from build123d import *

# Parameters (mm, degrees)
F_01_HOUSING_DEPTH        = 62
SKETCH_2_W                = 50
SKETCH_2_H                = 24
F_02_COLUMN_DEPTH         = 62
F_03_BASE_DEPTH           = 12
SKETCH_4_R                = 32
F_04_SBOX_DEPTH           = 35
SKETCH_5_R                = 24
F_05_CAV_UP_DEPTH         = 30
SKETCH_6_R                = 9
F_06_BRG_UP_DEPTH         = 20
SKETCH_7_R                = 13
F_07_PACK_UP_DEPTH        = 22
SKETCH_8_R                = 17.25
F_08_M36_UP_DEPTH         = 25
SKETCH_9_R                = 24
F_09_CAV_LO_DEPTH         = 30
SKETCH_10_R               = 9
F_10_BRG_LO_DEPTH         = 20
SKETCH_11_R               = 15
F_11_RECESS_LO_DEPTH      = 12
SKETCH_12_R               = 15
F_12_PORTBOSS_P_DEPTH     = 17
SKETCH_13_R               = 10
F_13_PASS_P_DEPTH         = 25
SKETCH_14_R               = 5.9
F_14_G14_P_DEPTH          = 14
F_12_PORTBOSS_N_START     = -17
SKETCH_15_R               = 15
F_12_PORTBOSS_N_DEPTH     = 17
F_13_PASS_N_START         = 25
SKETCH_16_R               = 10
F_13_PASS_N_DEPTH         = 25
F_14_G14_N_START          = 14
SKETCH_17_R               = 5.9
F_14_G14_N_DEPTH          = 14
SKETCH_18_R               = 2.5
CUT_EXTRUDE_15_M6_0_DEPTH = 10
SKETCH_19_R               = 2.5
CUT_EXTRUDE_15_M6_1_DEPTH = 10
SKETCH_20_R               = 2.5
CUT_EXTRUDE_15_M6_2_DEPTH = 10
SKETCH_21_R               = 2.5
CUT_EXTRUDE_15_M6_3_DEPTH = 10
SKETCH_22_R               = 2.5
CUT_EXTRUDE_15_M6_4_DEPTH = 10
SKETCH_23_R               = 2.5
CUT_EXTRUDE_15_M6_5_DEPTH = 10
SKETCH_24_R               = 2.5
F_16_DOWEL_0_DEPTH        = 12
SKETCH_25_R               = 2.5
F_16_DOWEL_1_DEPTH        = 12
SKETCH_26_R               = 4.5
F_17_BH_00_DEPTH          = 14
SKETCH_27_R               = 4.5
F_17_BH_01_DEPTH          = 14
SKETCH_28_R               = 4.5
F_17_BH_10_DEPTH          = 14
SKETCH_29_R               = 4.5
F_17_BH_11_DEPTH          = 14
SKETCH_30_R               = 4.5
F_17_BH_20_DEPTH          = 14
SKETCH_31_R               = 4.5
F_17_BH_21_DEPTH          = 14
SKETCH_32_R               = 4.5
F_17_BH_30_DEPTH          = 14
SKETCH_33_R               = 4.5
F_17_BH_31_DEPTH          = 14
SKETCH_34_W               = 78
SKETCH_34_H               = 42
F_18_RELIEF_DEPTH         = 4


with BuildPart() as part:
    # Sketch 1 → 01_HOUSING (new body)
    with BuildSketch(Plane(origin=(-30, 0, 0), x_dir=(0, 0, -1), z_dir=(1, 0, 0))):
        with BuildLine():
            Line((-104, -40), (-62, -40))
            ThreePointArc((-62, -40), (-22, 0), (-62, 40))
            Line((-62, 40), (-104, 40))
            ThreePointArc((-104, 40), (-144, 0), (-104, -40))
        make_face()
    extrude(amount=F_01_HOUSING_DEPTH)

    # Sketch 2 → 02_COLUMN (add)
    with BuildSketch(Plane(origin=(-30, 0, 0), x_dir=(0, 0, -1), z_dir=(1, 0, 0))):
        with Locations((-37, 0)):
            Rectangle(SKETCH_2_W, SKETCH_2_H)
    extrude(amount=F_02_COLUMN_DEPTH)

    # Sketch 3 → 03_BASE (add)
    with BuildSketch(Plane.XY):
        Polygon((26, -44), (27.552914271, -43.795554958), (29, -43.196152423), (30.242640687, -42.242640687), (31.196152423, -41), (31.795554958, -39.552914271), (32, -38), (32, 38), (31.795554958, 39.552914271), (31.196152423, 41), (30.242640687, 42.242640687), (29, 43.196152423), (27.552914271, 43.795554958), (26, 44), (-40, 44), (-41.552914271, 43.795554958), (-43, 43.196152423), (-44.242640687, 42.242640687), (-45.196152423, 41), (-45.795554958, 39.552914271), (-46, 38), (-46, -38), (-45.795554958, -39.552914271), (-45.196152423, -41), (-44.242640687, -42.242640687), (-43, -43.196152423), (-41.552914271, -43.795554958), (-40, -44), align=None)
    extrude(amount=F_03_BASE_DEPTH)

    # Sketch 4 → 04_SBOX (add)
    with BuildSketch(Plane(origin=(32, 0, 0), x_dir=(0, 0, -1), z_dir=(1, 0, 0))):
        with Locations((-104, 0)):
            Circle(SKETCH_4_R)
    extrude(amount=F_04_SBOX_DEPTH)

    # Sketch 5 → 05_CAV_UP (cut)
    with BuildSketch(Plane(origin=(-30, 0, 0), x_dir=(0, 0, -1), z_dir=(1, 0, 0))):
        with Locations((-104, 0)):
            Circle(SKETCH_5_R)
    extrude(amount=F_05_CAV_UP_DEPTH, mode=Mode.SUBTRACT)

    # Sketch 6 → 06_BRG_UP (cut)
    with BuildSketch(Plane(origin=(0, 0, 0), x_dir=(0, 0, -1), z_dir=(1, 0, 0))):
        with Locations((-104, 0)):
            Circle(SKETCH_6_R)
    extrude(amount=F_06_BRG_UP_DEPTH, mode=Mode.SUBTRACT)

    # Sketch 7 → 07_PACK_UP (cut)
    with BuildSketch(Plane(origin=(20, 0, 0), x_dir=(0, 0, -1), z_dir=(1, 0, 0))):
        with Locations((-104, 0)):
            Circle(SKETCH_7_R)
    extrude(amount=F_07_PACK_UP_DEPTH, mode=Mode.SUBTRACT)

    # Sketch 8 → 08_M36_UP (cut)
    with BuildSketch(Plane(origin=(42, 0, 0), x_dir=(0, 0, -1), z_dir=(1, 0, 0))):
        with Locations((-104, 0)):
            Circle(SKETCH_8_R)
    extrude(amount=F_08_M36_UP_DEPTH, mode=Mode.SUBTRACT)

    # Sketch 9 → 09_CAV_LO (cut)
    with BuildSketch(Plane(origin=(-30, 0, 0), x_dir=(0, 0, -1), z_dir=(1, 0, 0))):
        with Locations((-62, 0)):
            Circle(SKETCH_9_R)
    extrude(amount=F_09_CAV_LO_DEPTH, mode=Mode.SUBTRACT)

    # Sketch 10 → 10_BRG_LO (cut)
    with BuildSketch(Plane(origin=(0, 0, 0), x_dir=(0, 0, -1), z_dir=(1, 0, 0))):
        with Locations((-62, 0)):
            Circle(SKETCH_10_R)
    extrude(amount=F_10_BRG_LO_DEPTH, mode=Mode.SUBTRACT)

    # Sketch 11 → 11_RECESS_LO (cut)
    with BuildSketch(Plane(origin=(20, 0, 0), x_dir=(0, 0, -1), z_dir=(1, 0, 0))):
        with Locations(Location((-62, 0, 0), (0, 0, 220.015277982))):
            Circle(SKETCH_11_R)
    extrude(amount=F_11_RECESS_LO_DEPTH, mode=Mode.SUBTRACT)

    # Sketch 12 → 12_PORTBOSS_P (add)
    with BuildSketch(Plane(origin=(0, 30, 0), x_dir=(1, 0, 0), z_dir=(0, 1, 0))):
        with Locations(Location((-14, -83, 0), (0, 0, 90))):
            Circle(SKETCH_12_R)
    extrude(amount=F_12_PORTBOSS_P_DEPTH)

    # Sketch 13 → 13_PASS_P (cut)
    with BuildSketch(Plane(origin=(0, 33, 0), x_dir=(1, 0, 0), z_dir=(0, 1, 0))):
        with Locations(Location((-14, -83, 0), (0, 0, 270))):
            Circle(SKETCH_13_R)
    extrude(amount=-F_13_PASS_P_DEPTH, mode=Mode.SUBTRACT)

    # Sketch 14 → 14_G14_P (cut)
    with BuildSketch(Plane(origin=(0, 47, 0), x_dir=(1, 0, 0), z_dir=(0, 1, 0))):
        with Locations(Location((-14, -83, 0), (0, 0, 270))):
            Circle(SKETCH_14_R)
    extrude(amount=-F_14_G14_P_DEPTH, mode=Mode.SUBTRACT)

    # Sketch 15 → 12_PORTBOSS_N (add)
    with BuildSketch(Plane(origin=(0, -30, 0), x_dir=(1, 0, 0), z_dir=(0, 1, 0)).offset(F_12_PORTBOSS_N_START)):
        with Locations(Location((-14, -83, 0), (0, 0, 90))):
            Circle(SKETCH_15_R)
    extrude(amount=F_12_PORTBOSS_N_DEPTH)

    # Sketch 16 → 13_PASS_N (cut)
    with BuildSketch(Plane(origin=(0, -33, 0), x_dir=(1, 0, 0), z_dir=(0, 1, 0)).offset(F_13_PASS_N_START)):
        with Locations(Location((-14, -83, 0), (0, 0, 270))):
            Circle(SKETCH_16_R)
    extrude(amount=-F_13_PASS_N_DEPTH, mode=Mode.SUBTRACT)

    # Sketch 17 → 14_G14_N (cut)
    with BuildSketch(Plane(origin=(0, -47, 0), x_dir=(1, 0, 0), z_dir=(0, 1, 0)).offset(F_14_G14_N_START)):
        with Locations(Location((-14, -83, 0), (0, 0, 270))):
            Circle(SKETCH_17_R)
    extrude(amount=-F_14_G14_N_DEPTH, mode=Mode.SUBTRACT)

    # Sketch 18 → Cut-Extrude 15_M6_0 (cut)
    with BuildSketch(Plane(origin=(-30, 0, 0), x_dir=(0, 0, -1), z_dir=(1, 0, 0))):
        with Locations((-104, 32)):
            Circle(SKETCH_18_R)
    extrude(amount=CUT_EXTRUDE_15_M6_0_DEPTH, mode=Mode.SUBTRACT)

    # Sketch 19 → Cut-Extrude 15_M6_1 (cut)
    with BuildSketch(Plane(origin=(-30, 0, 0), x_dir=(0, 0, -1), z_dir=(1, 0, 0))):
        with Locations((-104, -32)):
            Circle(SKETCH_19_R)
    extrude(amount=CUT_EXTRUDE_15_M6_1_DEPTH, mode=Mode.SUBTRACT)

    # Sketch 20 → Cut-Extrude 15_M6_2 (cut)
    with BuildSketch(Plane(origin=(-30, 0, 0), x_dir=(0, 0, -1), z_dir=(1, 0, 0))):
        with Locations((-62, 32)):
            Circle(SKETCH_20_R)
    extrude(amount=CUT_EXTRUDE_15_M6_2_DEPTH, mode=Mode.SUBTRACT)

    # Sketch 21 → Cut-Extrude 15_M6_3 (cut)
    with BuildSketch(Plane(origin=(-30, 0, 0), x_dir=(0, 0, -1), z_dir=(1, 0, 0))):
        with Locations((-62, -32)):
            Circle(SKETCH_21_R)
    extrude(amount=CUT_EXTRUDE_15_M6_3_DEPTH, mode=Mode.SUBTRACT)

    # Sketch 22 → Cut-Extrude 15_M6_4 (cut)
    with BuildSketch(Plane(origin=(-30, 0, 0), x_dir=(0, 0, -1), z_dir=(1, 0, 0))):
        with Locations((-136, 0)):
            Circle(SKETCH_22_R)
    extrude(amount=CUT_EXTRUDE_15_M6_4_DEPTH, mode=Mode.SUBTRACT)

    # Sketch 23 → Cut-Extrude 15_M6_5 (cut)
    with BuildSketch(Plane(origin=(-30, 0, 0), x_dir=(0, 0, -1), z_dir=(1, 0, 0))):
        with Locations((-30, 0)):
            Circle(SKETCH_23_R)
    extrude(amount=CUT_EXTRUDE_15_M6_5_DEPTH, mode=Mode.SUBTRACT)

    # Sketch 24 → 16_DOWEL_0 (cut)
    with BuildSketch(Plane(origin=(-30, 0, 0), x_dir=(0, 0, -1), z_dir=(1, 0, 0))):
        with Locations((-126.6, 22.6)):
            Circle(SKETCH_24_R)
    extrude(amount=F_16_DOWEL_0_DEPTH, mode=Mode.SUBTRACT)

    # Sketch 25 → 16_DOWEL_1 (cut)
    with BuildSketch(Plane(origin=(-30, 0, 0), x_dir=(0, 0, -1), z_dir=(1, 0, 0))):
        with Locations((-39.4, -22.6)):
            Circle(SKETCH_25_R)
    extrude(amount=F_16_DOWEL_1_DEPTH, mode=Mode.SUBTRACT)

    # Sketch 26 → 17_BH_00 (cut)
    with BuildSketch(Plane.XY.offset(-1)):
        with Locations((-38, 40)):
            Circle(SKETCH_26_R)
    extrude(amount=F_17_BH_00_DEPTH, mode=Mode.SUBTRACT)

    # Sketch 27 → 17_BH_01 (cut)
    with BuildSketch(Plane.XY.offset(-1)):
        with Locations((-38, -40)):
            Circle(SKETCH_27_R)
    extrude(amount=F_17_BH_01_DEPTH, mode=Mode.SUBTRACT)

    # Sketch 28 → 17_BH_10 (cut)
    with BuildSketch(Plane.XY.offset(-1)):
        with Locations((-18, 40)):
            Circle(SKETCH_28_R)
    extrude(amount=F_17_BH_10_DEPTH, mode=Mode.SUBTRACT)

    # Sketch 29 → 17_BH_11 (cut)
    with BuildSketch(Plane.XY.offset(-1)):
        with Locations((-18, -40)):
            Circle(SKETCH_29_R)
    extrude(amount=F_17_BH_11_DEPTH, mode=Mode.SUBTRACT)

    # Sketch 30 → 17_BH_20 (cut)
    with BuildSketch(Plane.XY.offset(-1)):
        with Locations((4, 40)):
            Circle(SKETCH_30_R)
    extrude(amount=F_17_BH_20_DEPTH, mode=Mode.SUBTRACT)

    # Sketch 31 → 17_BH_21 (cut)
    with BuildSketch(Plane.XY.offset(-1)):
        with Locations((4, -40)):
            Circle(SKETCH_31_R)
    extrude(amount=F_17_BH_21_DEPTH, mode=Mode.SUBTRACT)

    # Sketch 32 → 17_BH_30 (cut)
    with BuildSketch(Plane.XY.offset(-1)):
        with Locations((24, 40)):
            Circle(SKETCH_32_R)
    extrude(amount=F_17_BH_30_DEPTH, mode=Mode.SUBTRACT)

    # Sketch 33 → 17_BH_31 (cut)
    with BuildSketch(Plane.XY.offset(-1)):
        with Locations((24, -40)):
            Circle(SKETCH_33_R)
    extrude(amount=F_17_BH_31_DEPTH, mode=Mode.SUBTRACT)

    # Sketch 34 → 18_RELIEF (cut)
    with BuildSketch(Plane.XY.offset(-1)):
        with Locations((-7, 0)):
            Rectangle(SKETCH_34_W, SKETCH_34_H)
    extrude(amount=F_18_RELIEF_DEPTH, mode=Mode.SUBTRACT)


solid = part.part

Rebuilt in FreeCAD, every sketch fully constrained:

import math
import FreeCAD as App
import Part
import Sketcher
from FreeCAD import Vector
Q = App.Units.Quantity


def add_polygon(sketch, points):
    """Adds a closed chain of lines whose ends are joined by coincident constraints."""
    first, n = sketch.GeometryCount, len(points)
    for a, b in zip(points, points[1:] + points[:1]):
        sketch.addGeometry(Part.LineSegment(App.Vector(*a, 0), App.Vector(*b, 0)), False)
    for i in range(n):
        sketch.addConstraint(Sketcher.Constraint("Coincident", first + i, 2, first + (i + 1) % n, 1))

doc = App.newDocument("Part")
body = doc.addObject("PartDesign::Body", "Body")

sketch1 = body.newObject("Sketcher::SketchObject", "Sketch")
sketch1.AttachmentSupport = (doc.getObject("YZ_Plane"), [""])
sketch1.MapMode = "FlatFace"
sketch1.AttachmentOffset = App.Placement(Vector(0, 0, -30), App.Rotation())
sketch1.addGeometry(Part.LineSegment(Vector(-40, 104, 0), Vector(-40, 62, 0)), False)
sketch1.addGeometry(Part.ArcOfCircle(Part.Circle(Vector(0, 62, 0), Vector(0, 0, 1), 40), math.radians(180), math.radians(360)), False)
sketch1.addGeometry(Part.LineSegment(Vector(40, 62, 0), Vector(40, 104, 0)), False)
sketch1.addGeometry(Part.ArcOfCircle(Part.Circle(Vector(0, 104, 0), Vector(0, 0, 1), 40), math.radians(0), math.radians(180)), False)
sketch1.addConstraint(Sketcher.Constraint("Tangent", 0, 2, 1, 1))
sketch1.addConstraint(Sketcher.Constraint("Tangent", 1, 2, 2, 1))
sketch1.addConstraint(Sketcher.Constraint("Tangent", 2, 2, 3, 1))
sketch1.addConstraint(Sketcher.Constraint("Tangent", 3, 2, 0, 1))
sketch1.addConstraint(Sketcher.Constraint("Vertical", 0))
sketch1.addConstraint(Sketcher.Constraint("Vertical", 2))
sketch1.addConstraint(Sketcher.Constraint("PointOnObject", 1, 3, -2))
sketch1.addConstraint(Sketcher.Constraint("Radius", 1, 40.0))
sketch1.addConstraint(Sketcher.Constraint("DistanceY", 0, 2, 0, 1, 42.0))
sketch1.addConstraint(Sketcher.Constraint("DistanceY", -1, 1, 1, 3, 62.0))
pad1 = body.newObject("PartDesign::Pad", "Pad")
pad1.Profile = sketch1
pad1.Length = 62

sketch2 = body.newObject("Sketcher::SketchObject", "Sketch001")
sketch2.AttachmentSupport = (doc.getObject("YZ_Plane"), [""])
sketch2.MapMode = "FlatFace"
sketch2.AttachmentOffset = App.Placement(Vector(0, 0, -30), App.Rotation())
add_polygon(sketch2, [(12, 62), (-12, 62), (-12, 12), (12, 12)])
sketch2.addConstraint(Sketcher.Constraint("Horizontal", 0))
sketch2.addConstraint(Sketcher.Constraint("Vertical", 1))
sketch2.addConstraint(Sketcher.Constraint("Horizontal", 2))
sketch2.addConstraint(Sketcher.Constraint("Vertical", 3))
sketch2.addConstraint(Sketcher.Constraint("DistanceX", 0, 2, 0, 1, 24.0))
sketch2.addConstraint(Sketcher.Constraint("DistanceY", 1, 2, 1, 1, 50.0))
sketch2.addConstraint(Sketcher.Constraint("DistanceX", 0, 2, -1, 1, 12.0))
sketch2.addConstraint(Sketcher.Constraint("DistanceY", -1, 1, 0, 2, 62.0))
pad2 = body.newObject("PartDesign::Pad", "Pad001")
pad2.Profile = sketch2
pad2.Length = 62

sketch3 = body.newObject("Sketcher::SketchObject", "Sketch002")
sketch3.AttachmentSupport = (doc.getObject("XY_Plane"), [""])
sketch3.MapMode = "FlatFace"
add_polygon(sketch3, [(26, -44), (27.6, -43.8), (29, -43.2), (30.2, -42.2), (31.2, -41), (31.8, -39.6), (32, -38), (32, 38), (31.8, 39.6), (31.2, 41), (30.2, 42.2), (29, 43.2), (27.6, 43.8), (26, 44), (-40, 44), (-41.6, 43.8), (-43, 43.2), (-44.2, 42.2), (-45.2, 41), (-45.8, 39.6), (-46, 38), (-46, -38), (-45.8, -39.6), (-45.2, -41), (-44.2, -42.2), (-43, -43.2), (-41.6, -43.8), (-40, -44)])
sketch3.addConstraint(Sketcher.Constraint("Vertical", 6))
sketch3.addConstraint(Sketcher.Constraint("Horizontal", 13))
sketch3.addConstraint(Sketcher.Constraint("Vertical", 20))
sketch3.addConstraint(Sketcher.Constraint("Horizontal", 27))
sketch3.addConstraint(Sketcher.Constraint("Symmetric", 4, 2, 7, 2, -1))
sketch3.addConstraint(Sketcher.Constraint("Symmetric", 3, 2, 8, 2, -1))
sketch3.addConstraint(Sketcher.Constraint("Symmetric", 2, 2, 9, 2, -1))
sketch3.addConstraint(Sketcher.Constraint("Symmetric", 1, 2, 10, 2, -1))
sketch3.addConstraint(Sketcher.Constraint("Symmetric", 0, 2, 11, 2, -1))
sketch3.addConstraint(Sketcher.Constraint("Symmetric", 18, 2, 21, 2, -1))
sketch3.addConstraint(Sketcher.Constraint("Symmetric", 17, 2, 22, 2, -1))
sketch3.addConstraint(Sketcher.Constraint("Symmetric", 16, 2, 23, 2, -1))
sketch3.addConstraint(Sketcher.Constraint("Symmetric", 15, 2, 24, 2, -1))
sketch3.addConstraint(Sketcher.Constraint("Symmetric", 14, 2, 25, 2, -1))
sketch3.addConstraint(Sketcher.Constraint("Symmetric", 13, 2, 26, 2, -1))
sketch3.addConstraint(Sketcher.Constraint("Perpendicular", 0, 7))
sketch3.addConstraint(Sketcher.Constraint("Perpendicular", 1, 8))
sketch3.addConstraint(Sketcher.Constraint("Perpendicular", 2, 9))
sketch3.addConstraint(Sketcher.Constraint("Perpendicular", 5, 12))
sketch3.addConstraint(Sketcher.Constraint("Perpendicular", 7, 14))
sketch3.addConstraint(Sketcher.Constraint("Perpendicular", 8, 15))
sketch3.addConstraint(Sketcher.Constraint("Perpendicular", 9, 16))
sketch3.addConstraint(Sketcher.Constraint("Perpendicular", 10, 17))
sketch3.addConstraint(Sketcher.Constraint("Perpendicular", 11, 18))
sketch3.addConstraint(Sketcher.Constraint("Perpendicular", 12, 19))
sketch3.addConstraint(Sketcher.Constraint("Perpendicular", 14, 21))
sketch3.addConstraint(Sketcher.Constraint("Perpendicular", 19, 26))
sketch3.addConstraint(Sketcher.Constraint("Horizontal", 11, 2, 14, 2))
sketch3.addConstraint(Sketcher.Constraint("Horizontal", 10, 2, 15, 2))
sketch3.addConstraint(Sketcher.Constraint("Horizontal", 9, 2, 16, 2))
sketch3.addConstraint(Sketcher.Constraint("Horizontal", 8, 2, 17, 2))
sketch3.addConstraint(Sketcher.Constraint("Horizontal", 7, 2, 18, 2))
sketch3.addConstraint(Sketcher.Constraint("Horizontal", 6, 2, 19, 2))
sketch3.addConstraint(Sketcher.Constraint("Equal", 0, 1))
sketch3.addConstraint(Sketcher.Constraint("Equal", 1, 2))
sketch3.addConstraint(Sketcher.Constraint("Equal", 2, 3))
sketch3.addConstraint(Sketcher.Constraint("Equal", 3, 4))
sketch3.addConstraint(Sketcher.Constraint("Equal", 4, 5))
sketch3.addConstraint(Sketcher.Constraint("DistanceX", 13, 2, 13, 1, 66.0))
sketch3.addConstraint(Sketcher.Constraint("DistanceY", 6, 1, 6, 2, 76.0))
sketch3.addConstraint(Sketcher.Constraint("DistanceX", -1, 1, 1, 2, 29.0))
sketch3.addConstraint(Sketcher.Constraint("DistanceY", 3, 2, -1, 1, 41.0))
sketch3.addConstraint(Sketcher.Constraint("DistanceX", -1, 1, 5, 2, 32.0))
sketch3.addConstraint(Sketcher.Constraint("Angle", 0, Q("7.5 deg")))
sketch3.addConstraint(Sketcher.Constraint("Angle", 1, Q("22.5 deg")))
pad3 = body.newObject("PartDesign::Pad", "Pad002")
pad3.Profile = sketch3
pad3.Length = 12

sketch4 = body.newObject("Sketcher::SketchObject", "Sketch003")
sketch4.AttachmentSupport = (doc.getObject("YZ_Plane"), [""])
sketch4.MapMode = "FlatFace"
sketch4.AttachmentOffset = App.Placement(Vector(0, 0, 32), App.Rotation())
sketch4.addGeometry(Part.Circle(Vector(0, 104, 0), Vector(0, 0, 1), 32), False)
sketch4.addConstraint(Sketcher.Constraint("PointOnObject", 0, 3, -2))
sketch4.addConstraint(Sketcher.Constraint("Diameter", 0, 64.0))
sketch4.addConstraint(Sketcher.Constraint("DistanceY", -1, 1, 0, 3, 104.0))
pad4 = body.newObject("PartDesign::Pad", "Pad003")
pad4.Profile = sketch4
pad4.Length = 35

sketch5 = body.newObject("Sketcher::SketchObject", "Sketch004")
sketch5.AttachmentSupport = (doc.getObject("YZ_Plane"), [""])
sketch5.MapMode = "FlatFace"
sketch5.AttachmentOffset = App.Placement(Vector(0, 0, -30), App.Rotation())
sketch5.addGeometry(Part.Circle(Vector(0, 104, 0), Vector(0, 0, 1), 24), False)
sketch5.addConstraint(Sketcher.Constraint("PointOnObject", 0, 3, -2))
sketch5.addConstraint(Sketcher.Constraint("Diameter", 0, 48.0))
sketch5.addConstraint(Sketcher.Constraint("DistanceY", -1, 1, 0, 3, 104.0))
pocket1 = body.newObject("PartDesign::Pocket", "Pocket")
pocket1.Profile = sketch5
pocket1.Length = 30
pocket1.Reversed = True

sketch6 = body.newObject("Sketcher::SketchObject", "Sketch005")
sketch6.AttachmentSupport = (doc.getObject("YZ_Plane"), [""])
sketch6.MapMode = "FlatFace"
sketch6.addGeometry(Part.Circle(Vector(0, 104, 0), Vector(0, 0, 1), 9), False)
sketch6.addConstraint(Sketcher.Constraint("PointOnObject", 0, 3, -2))
sketch6.addConstraint(Sketcher.Constraint("Diameter", 0, 18.0))
sketch6.addConstraint(Sketcher.Constraint("DistanceY", -1, 1, 0, 3, 104.0))
pocket2 = body.newObject("PartDesign::Pocket", "Pocket001")
pocket2.Profile = sketch6
pocket2.Length = 20
pocket2.Reversed = True

sketch7 = body.newObject("Sketcher::SketchObject", "Sketch006")
sketch7.AttachmentSupport = (doc.getObject("YZ_Plane"), [""])
sketch7.MapMode = "FlatFace"
sketch7.AttachmentOffset = App.Placement(Vector(0, 0, 20), App.Rotation())
sketch7.addGeometry(Part.Circle(Vector(0, 104, 0), Vector(0, 0, 1), 13), False)
sketch7.addConstraint(Sketcher.Constraint("PointOnObject", 0, 3, -2))
sketch7.addConstraint(Sketcher.Constraint("Diameter", 0, 26.0))
sketch7.addConstraint(Sketcher.Constraint("DistanceY", -1, 1, 0, 3, 104.0))
pocket3 = body.newObject("PartDesign::Pocket", "Pocket002")
pocket3.Profile = sketch7
pocket3.Length = 22
pocket3.Reversed = True

sketch8 = body.newObject("Sketcher::SketchObject", "Sketch007")
sketch8.AttachmentSupport = (doc.getObject("YZ_Plane"), [""])
sketch8.MapMode = "FlatFace"
sketch8.AttachmentOffset = App.Placement(Vector(0, 0, 42), App.Rotation())
sketch8.addGeometry(Part.Circle(Vector(0, 104, 0), Vector(0, 0, 1), 17), False)
sketch8.addConstraint(Sketcher.Constraint("PointOnObject", 0, 3, -2))
sketch8.addConstraint(Sketcher.Constraint("Diameter", 0, 34.5))
sketch8.addConstraint(Sketcher.Constraint("DistanceY", -1, 1, 0, 3, 104.0))
pocket4 = body.newObject("PartDesign::Pocket", "Pocket003")
pocket4.Profile = sketch8
pocket4.Length = 25
pocket4.Reversed = True

sketch9 = body.newObject("Sketcher::SketchObject", "Sketch008")
sketch9.AttachmentSupport = (doc.getObject("YZ_Plane"), [""])
sketch9.MapMode = "FlatFace"
sketch9.AttachmentOffset = App.Placement(Vector(0, 0, -30), App.Rotation())
sketch9.addGeometry(Part.Circle(Vector(0, 62, 0), Vector(0, 0, 1), 24), False)
sketch9.addConstraint(Sketcher.Constraint("PointOnObject", 0, 3, -2))
sketch9.addConstraint(Sketcher.Constraint("Diameter", 0, 48.0))
sketch9.addConstraint(Sketcher.Constraint("DistanceY", -1, 1, 0, 3, 62.0))
pocket5 = body.newObject("PartDesign::Pocket", "Pocket004")
pocket5.Profile = sketch9
pocket5.Length = 30
pocket5.Reversed = True

sketch10 = body.newObject("Sketcher::SketchObject", "Sketch009")
sketch10.AttachmentSupport = (doc.getObject("YZ_Plane"), [""])
sketch10.MapMode = "FlatFace"
sketch10.addGeometry(Part.Circle(Vector(0, 62, 0), Vector(0, 0, 1), 9), False)
sketch10.addConstraint(Sketcher.Constraint("PointOnObject", 0, 3, -2))
sketch10.addConstraint(Sketcher.Constraint("Diameter", 0, 18.0))
sketch10.addConstraint(Sketcher.Constraint("DistanceY", -1, 1, 0, 3, 62.0))
pocket6 = body.newObject("PartDesign::Pocket", "Pocket005")
pocket6.Profile = sketch10
pocket6.Length = 20
pocket6.Reversed = True

sketch11 = body.newObject("Sketcher::SketchObject", "Sketch010")
sketch11.AttachmentSupport = (doc.getObject("YZ_Plane"), [""])
sketch11.MapMode = "FlatFace"
sketch11.AttachmentOffset = App.Placement(Vector(0, 0, 20), App.Rotation())
sketch11.addGeometry(Part.Circle(Vector(0, 62, 0), Vector(0, 0, 1), 15), False)
sketch11.addConstraint(Sketcher.Constraint("PointOnObject", 0, 3, -2))
sketch11.addConstraint(Sketcher.Constraint("Diameter", 0, 30.0))
sketch11.addConstraint(Sketcher.Constraint("DistanceY", -1, 1, 0, 3, 62.0))
pocket7 = body.newObject("PartDesign::Pocket", "Pocket006")
pocket7.Profile = sketch11
pocket7.Length = 12
pocket7.Reversed = True

sketch12 = body.newObject("Sketcher::SketchObject", "Sketch011")
sketch12.AttachmentSupport = (doc.getObject("XZ_Plane"), [""])
sketch12.MapMode = "FlatFace"
sketch12.AttachmentOffset = App.Placement(Vector(0, 0, -30), App.Rotation())
sketch12.addGeometry(Part.Circle(Vector(-14, 83, 0), Vector(0, 0, 1), 15), False)
sketch12.addConstraint(Sketcher.Constraint("Diameter", 0, 30.0))
sketch12.addConstraint(Sketcher.Constraint("DistanceX", 0, 3, -1, 1, 14.0))
sketch12.addConstraint(Sketcher.Constraint("DistanceY", -1, 1, 0, 3, 83.0))
pad5 = body.newObject("PartDesign::Pad", "Pad004")
pad5.Profile = sketch12
pad5.Length = 17
pad5.Reversed = True

sketch13 = body.newObject("Sketcher::SketchObject", "Sketch012")
sketch13.AttachmentSupport = (doc.getObject("XZ_Plane"), [""])
sketch13.MapMode = "FlatFace"
sketch13.AttachmentOffset = App.Placement(Vector(0, 0, -33), App.Rotation())
sketch13.addGeometry(Part.Circle(Vector(-14, 83, 0), Vector(0, 0, 1), 10), False)
sketch13.addConstraint(Sketcher.Constraint("Diameter", 0, 20.0))
sketch13.addConstraint(Sketcher.Constraint("DistanceX", 0, 3, -1, 1, 14.0))
sketch13.addConstraint(Sketcher.Constraint("DistanceY", -1, 1, 0, 3, 83.0))
pocket8 = body.newObject("PartDesign::Pocket", "Pocket007")
pocket8.Profile = sketch13
pocket8.Length = 25
pocket8.Reversed = True

sketch14 = body.newObject("Sketcher::SketchObject", "Sketch013")
sketch14.AttachmentSupport = (doc.getObject("XZ_Plane"), [""])
sketch14.MapMode = "FlatFace"
sketch14.AttachmentOffset = App.Placement(Vector(0, 0, -47), App.Rotation())
sketch14.addGeometry(Part.Circle(Vector(-14, 83, 0), Vector(0, 0, 1), 6), False)
sketch14.addConstraint(Sketcher.Constraint("Diameter", 0, 11.8))
sketch14.addConstraint(Sketcher.Constraint("DistanceX", 0, 3, -1, 1, 14.0))
sketch14.addConstraint(Sketcher.Constraint("DistanceY", -1, 1, 0, 3, 83.0))
pocket9 = body.newObject("PartDesign::Pocket", "Pocket008")
pocket9.Profile = sketch14
pocket9.Length = 14
pocket9.Reversed = True

sketch15 = body.newObject("Sketcher::SketchObject", "Sketch014")
sketch15.AttachmentSupport = (doc.getObject("XZ_Plane"), [""])
sketch15.MapMode = "FlatFace"
sketch15.AttachmentOffset = App.Placement(Vector(0, 0, 47), App.Rotation())
sketch15.addGeometry(Part.Circle(Vector(-14, 83, 0), Vector(0, 0, 1), 15), False)
sketch15.addConstraint(Sketcher.Constraint("Diameter", 0, 30.0))
sketch15.addConstraint(Sketcher.Constraint("DistanceX", 0, 3, -1, 1, 14.0))
sketch15.addConstraint(Sketcher.Constraint("DistanceY", -1, 1, 0, 3, 83.0))
pad6 = body.newObject("PartDesign::Pad", "Pad005")
pad6.Profile = sketch15
pad6.Length = 17
pad6.Reversed = True

sketch16 = body.newObject("Sketcher::SketchObject", "Sketch015")
sketch16.AttachmentSupport = (doc.getObject("XZ_Plane"), [""])
sketch16.MapMode = "FlatFace"
sketch16.AttachmentOffset = App.Placement(Vector(0, 0, 8), App.Rotation())
sketch16.addGeometry(Part.Circle(Vector(-14, 83, 0), Vector(0, 0, 1), 10), False)
sketch16.addConstraint(Sketcher.Constraint("Diameter", 0, 20.0))
sketch16.addConstraint(Sketcher.Constraint("DistanceX", 0, 3, -1, 1, 14.0))
sketch16.addConstraint(Sketcher.Constraint("DistanceY", -1, 1, 0, 3, 83.0))
pocket10 = body.newObject("PartDesign::Pocket", "Pocket009")
pocket10.Profile = sketch16
pocket10.Length = 25
pocket10.Reversed = True

sketch17 = body.newObject("Sketcher::SketchObject", "Sketch016")
sketch17.AttachmentSupport = (doc.getObject("XZ_Plane"), [""])
sketch17.MapMode = "FlatFace"
sketch17.AttachmentOffset = App.Placement(Vector(0, 0, 33), App.Rotation())
sketch17.addGeometry(Part.Circle(Vector(-14, 83, 0), Vector(0, 0, 1), 6), False)
sketch17.addConstraint(Sketcher.Constraint("Diameter", 0, 11.8))
sketch17.addConstraint(Sketcher.Constraint("DistanceX", 0, 3, -1, 1, 14.0))
sketch17.addConstraint(Sketcher.Constraint("DistanceY", -1, 1, 0, 3, 83.0))
pocket11 = body.newObject("PartDesign::Pocket", "Pocket010")
pocket11.Profile = sketch17
pocket11.Length = 14
pocket11.Reversed = True

sketch18 = body.newObject("Sketcher::SketchObject", "Sketch017")
sketch18.AttachmentSupport = (doc.getObject("YZ_Plane"), [""])
sketch18.MapMode = "FlatFace"
sketch18.AttachmentOffset = App.Placement(Vector(0, 0, -30), App.Rotation())
sketch18.addGeometry(Part.Circle(Vector(32, 104, 0), Vector(0, 0, 1), 2.5), False)
sketch18.addConstraint(Sketcher.Constraint("Diameter", 0, 5.0))
sketch18.addConstraint(Sketcher.Constraint("DistanceX", -1, 1, 0, 3, 32.0))
sketch18.addConstraint(Sketcher.Constraint("DistanceY", -1, 1, 0, 3, 104.0))
pocket12 = body.newObject("PartDesign::Pocket", "Pocket011")
pocket12.Profile = sketch18
pocket12.Length = 10
pocket12.Reversed = True

sketch19 = body.newObject("Sketcher::SketchObject", "Sketch018")
sketch19.AttachmentSupport = (doc.getObject("YZ_Plane"), [""])
sketch19.MapMode = "FlatFace"
sketch19.AttachmentOffset = App.Placement(Vector(0, 0, -30), App.Rotation())
sketch19.addGeometry(Part.Circle(Vector(-32, 104, 0), Vector(0, 0, 1), 2.5), False)
sketch19.addConstraint(Sketcher.Constraint("Diameter", 0, 5.0))
sketch19.addConstraint(Sketcher.Constraint("DistanceX", 0, 3, -1, 1, 32.0))
sketch19.addConstraint(Sketcher.Constraint("DistanceY", -1, 1, 0, 3, 104.0))
pocket13 = body.newObject("PartDesign::Pocket", "Pocket012")
pocket13.Profile = sketch19
pocket13.Length = 10
pocket13.Reversed = True

sketch20 = body.newObject("Sketcher::SketchObject", "Sketch019")
sketch20.AttachmentSupport = (doc.getObject("YZ_Plane"), [""])
sketch20.MapMode = "FlatFace"
sketch20.AttachmentOffset = App.Placement(Vector(0, 0, -30), App.Rotation())
sketch20.addGeometry(Part.Circle(Vector(32, 62, 0), Vector(0, 0, 1), 2.5), False)
sketch20.addConstraint(Sketcher.Constraint("Diameter", 0, 5.0))
sketch20.addConstraint(Sketcher.Constraint("DistanceX", -1, 1, 0, 3, 32.0))
sketch20.addConstraint(Sketcher.Constraint("DistanceY", -1, 1, 0, 3, 62.0))
pocket14 = body.newObject("PartDesign::Pocket", "Pocket013")
pocket14.Profile = sketch20
pocket14.Length = 10
pocket14.Reversed = True

sketch21 = body.newObject("Sketcher::SketchObject", "Sketch020")
sketch21.AttachmentSupport = (doc.getObject("YZ_Plane"), [""])
sketch21.MapMode = "FlatFace"
sketch21.AttachmentOffset = App.Placement(Vector(0, 0, -30), App.Rotation())
sketch21.addGeometry(Part.Circle(Vector(-32, 62, 0), Vector(0, 0, 1), 2.5), False)
sketch21.addConstraint(Sketcher.Constraint("Diameter", 0, 5.0))
sketch21.addConstraint(Sketcher.Constraint("DistanceX", 0, 3, -1, 1, 32.0))
sketch21.addConstraint(Sketcher.Constraint("DistanceY", -1, 1, 0, 3, 62.0))
pocket15 = body.newObject("PartDesign::Pocket", "Pocket014")
pocket15.Profile = sketch21
pocket15.Length = 10
pocket15.Reversed = True

sketch22 = body.newObject("Sketcher::SketchObject", "Sketch021")
sketch22.AttachmentSupport = (doc.getObject("YZ_Plane"), [""])
sketch22.MapMode = "FlatFace"
sketch22.AttachmentOffset = App.Placement(Vector(0, 0, -30), App.Rotation())
sketch22.addGeometry(Part.Circle(Vector(0, 136, 0), Vector(0, 0, 1), 2.5), False)
sketch22.addConstraint(Sketcher.Constraint("PointOnObject", 0, 3, -2))
sketch22.addConstraint(Sketcher.Constraint("Diameter", 0, 5.0))
sketch22.addConstraint(Sketcher.Constraint("DistanceY", -1, 1, 0, 3, 136.0))
pocket16 = body.newObject("PartDesign::Pocket", "Pocket015")
pocket16.Profile = sketch22
pocket16.Length = 10
pocket16.Reversed = True

sketch23 = body.newObject("Sketcher::SketchObject", "Sketch022")
sketch23.AttachmentSupport = (doc.getObject("YZ_Plane"), [""])
sketch23.MapMode = "FlatFace"
sketch23.AttachmentOffset = App.Placement(Vector(0, 0, -30), App.Rotation())
sketch23.addGeometry(Part.Circle(Vector(0, 30, 0), Vector(0, 0, 1), 2.5), False)
sketch23.addConstraint(Sketcher.Constraint("PointOnObject", 0, 3, -2))
sketch23.addConstraint(Sketcher.Constraint("Diameter", 0, 5.0))
sketch23.addConstraint(Sketcher.Constraint("DistanceY", -1, 1, 0, 3, 30.0))
pocket17 = body.newObject("PartDesign::Pocket", "Pocket016")
pocket17.Profile = sketch23
pocket17.Length = 10
pocket17.Reversed = True

sketch24 = body.newObject("Sketcher::SketchObject", "Sketch023")
sketch24.AttachmentSupport = (doc.getObject("YZ_Plane"), [""])
sketch24.MapMode = "FlatFace"
sketch24.AttachmentOffset = App.Placement(Vector(0, 0, -30), App.Rotation())
sketch24.addGeometry(Part.Circle(Vector(22.6, 126.6, 0), Vector(0, 0, 1), 2.5), False)
sketch24.addConstraint(Sketcher.Constraint("Diameter", 0, 5.0))
sketch24.addConstraint(Sketcher.Constraint("DistanceX", -1, 1, 0, 3, 22.6))
sketch24.addConstraint(Sketcher.Constraint("DistanceY", -1, 1, 0, 3, 126.6))
pocket18 = body.newObject("PartDesign::Pocket", "Pocket017")
pocket18.Profile = sketch24
pocket18.Length = 12
pocket18.Reversed = True

sketch25 = body.newObject("Sketcher::SketchObject", "Sketch024")
sketch25.AttachmentSupport = (doc.getObject("YZ_Plane"), [""])
sketch25.MapMode = "FlatFace"
sketch25.AttachmentOffset = App.Placement(Vector(0, 0, -30), App.Rotation())
sketch25.addGeometry(Part.Circle(Vector(-22.6, 39.4, 0), Vector(0, 0, 1), 2.5), False)
sketch25.addConstraint(Sketcher.Constraint("Diameter", 0, 5.0))
sketch25.addConstraint(Sketcher.Constraint("DistanceX", 0, 3, -1, 1, 22.6))
sketch25.addConstraint(Sketcher.Constraint("DistanceY", -1, 1, 0, 3, 39.4))
pocket19 = body.newObject("PartDesign::Pocket", "Pocket018")
pocket19.Profile = sketch25
pocket19.Length = 12
pocket19.Reversed = True

sketch26 = body.newObject("Sketcher::SketchObject", "Sketch025")
sketch26.AttachmentSupport = (doc.getObject("XY_Plane"), [""])
sketch26.MapMode = "FlatFace"
sketch26.AttachmentOffset = App.Placement(Vector(0, 0, -1), App.Rotation())
sketch26.addGeometry(Part.Circle(Vector(-38, 40, 0), Vector(0, 0, 1), 4.5), False)
sketch26.addConstraint(Sketcher.Constraint("Diameter", 0, 9.0))
sketch26.addConstraint(Sketcher.Constraint("DistanceX", 0, 3, -1, 1, 38.0))
sketch26.addConstraint(Sketcher.Constraint("DistanceY", -1, 1, 0, 3, 40.0))
pocket20 = body.newObject("PartDesign::Pocket", "Pocket019")
pocket20.Profile = sketch26
pocket20.Length = 14
pocket20.Reversed = True

sketch27 = body.newObject("Sketcher::SketchObject", "Sketch026")
sketch27.AttachmentSupport = (doc.getObject("XY_Plane"), [""])
sketch27.MapMode = "FlatFace"
sketch27.AttachmentOffset = App.Placement(Vector(0, 0, -1), App.Rotation())
sketch27.addGeometry(Part.Circle(Vector(-38, -40, 0), Vector(0, 0, 1), 4.5), False)
sketch27.addConstraint(Sketcher.Constraint("Diameter", 0, 9.0))
sketch27.addConstraint(Sketcher.Constraint("DistanceX", 0, 3, -1, 1, 38.0))
sketch27.addConstraint(Sketcher.Constraint("DistanceY", 0, 3, -1, 1, 40.0))
pocket21 = body.newObject("PartDesign::Pocket", "Pocket020")
pocket21.Profile = sketch27
pocket21.Length = 14
pocket21.Reversed = True

sketch28 = body.newObject("Sketcher::SketchObject", "Sketch027")
sketch28.AttachmentSupport = (doc.getObject("XY_Plane"), [""])
sketch28.MapMode = "FlatFace"
sketch28.AttachmentOffset = App.Placement(Vector(0, 0, -1), App.Rotation())
sketch28.addGeometry(Part.Circle(Vector(-18, 40, 0), Vector(0, 0, 1), 4.5), False)
sketch28.addConstraint(Sketcher.Constraint("Diameter", 0, 9.0))
sketch28.addConstraint(Sketcher.Constraint("DistanceX", 0, 3, -1, 1, 18.0))
sketch28.addConstraint(Sketcher.Constraint("DistanceY", -1, 1, 0, 3, 40.0))
pocket22 = body.newObject("PartDesign::Pocket", "Pocket021")
pocket22.Profile = sketch28
pocket22.Length = 14
pocket22.Reversed = True

sketch29 = body.newObject("Sketcher::SketchObject", "Sketch028")
sketch29.AttachmentSupport = (doc.getObject("XY_Plane"), [""])
sketch29.MapMode = "FlatFace"
sketch29.AttachmentOffset = App.Placement(Vector(0, 0, -1), App.Rotation())
sketch29.addGeometry(Part.Circle(Vector(-18, -40, 0), Vector(0, 0, 1), 4.5), False)
sketch29.addConstraint(Sketcher.Constraint("Diameter", 0, 9.0))
sketch29.addConstraint(Sketcher.Constraint("DistanceX", 0, 3, -1, 1, 18.0))
sketch29.addConstraint(Sketcher.Constraint("DistanceY", 0, 3, -1, 1, 40.0))
pocket23 = body.newObject("PartDesign::Pocket", "Pocket022")
pocket23.Profile = sketch29
pocket23.Length = 14
pocket23.Reversed = True

sketch30 = body.newObject("Sketcher::SketchObject", "Sketch029")
sketch30.AttachmentSupport = (doc.getObject("XY_Plane"), [""])
sketch30.MapMode = "FlatFace"
sketch30.AttachmentOffset = App.Placement(Vector(0, 0, -1), App.Rotation())
sketch30.addGeometry(Part.Circle(Vector(4, 40, 0), Vector(0, 0, 1), 4.5), False)
sketch30.addConstraint(Sketcher.Constraint("Diameter", 0, 9.0))
sketch30.addConstraint(Sketcher.Constraint("DistanceX", -1, 1, 0, 3, 4.0))
sketch30.addConstraint(Sketcher.Constraint("DistanceY", -1, 1, 0, 3, 40.0))
pocket24 = body.newObject("PartDesign::Pocket", "Pocket023")
pocket24.Profile = sketch30
pocket24.Length = 14
pocket24.Reversed = True

sketch31 = body.newObject("Sketcher::SketchObject", "Sketch030")
sketch31.AttachmentSupport = (doc.getObject("XY_Plane"), [""])
sketch31.MapMode = "FlatFace"
sketch31.AttachmentOffset = App.Placement(Vector(0, 0, -1), App.Rotation())
sketch31.addGeometry(Part.Circle(Vector(4, -40, 0), Vector(0, 0, 1), 4.5), False)
sketch31.addConstraint(Sketcher.Constraint("Diameter", 0, 9.0))
sketch31.addConstraint(Sketcher.Constraint("DistanceX", -1, 1, 0, 3, 4.0))
sketch31.addConstraint(Sketcher.Constraint("DistanceY", 0, 3, -1, 1, 40.0))
pocket25 = body.newObject("PartDesign::Pocket", "Pocket024")
pocket25.Profile = sketch31
pocket25.Length = 14
pocket25.Reversed = True

sketch32 = body.newObject("Sketcher::SketchObject", "Sketch031")
sketch32.AttachmentSupport = (doc.getObject("XY_Plane"), [""])
sketch32.MapMode = "FlatFace"
sketch32.AttachmentOffset = App.Placement(Vector(0, 0, -1), App.Rotation())
sketch32.addGeometry(Part.Circle(Vector(24, 40, 0), Vector(0, 0, 1), 4.5), False)
sketch32.addConstraint(Sketcher.Constraint("Diameter", 0, 9.0))
sketch32.addConstraint(Sketcher.Constraint("DistanceX", -1, 1, 0, 3, 24.0))
sketch32.addConstraint(Sketcher.Constraint("DistanceY", -1, 1, 0, 3, 40.0))
pocket26 = body.newObject("PartDesign::Pocket", "Pocket025")
pocket26.Profile = sketch32
pocket26.Length = 14
pocket26.Reversed = True

sketch33 = body.newObject("Sketcher::SketchObject", "Sketch032")
sketch33.AttachmentSupport = (doc.getObject("XY_Plane"), [""])
sketch33.MapMode = "FlatFace"
sketch33.AttachmentOffset = App.Placement(Vector(0, 0, -1), App.Rotation())
sketch33.addGeometry(Part.Circle(Vector(24, -40, 0), Vector(0, 0, 1), 4.5), False)
sketch33.addConstraint(Sketcher.Constraint("Diameter", 0, 9.0))
sketch33.addConstraint(Sketcher.Constraint("DistanceX", -1, 1, 0, 3, 24.0))
sketch33.addConstraint(Sketcher.Constraint("DistanceY", 0, 3, -1, 1, 40.0))
pocket27 = body.newObject("PartDesign::Pocket", "Pocket026")
pocket27.Profile = sketch33
pocket27.Length = 14
pocket27.Reversed = True

sketch34 = body.newObject("Sketcher::SketchObject", "Sketch033")
sketch34.AttachmentSupport = (doc.getObject("XY_Plane"), [""])
sketch34.MapMode = "FlatFace"
sketch34.AttachmentOffset = App.Placement(Vector(0, 0, -1), App.Rotation())
add_polygon(sketch34, [(-46, 21), (-46, -21), (32, -21), (32, 21)])
sketch34.addConstraint(Sketcher.Constraint("Vertical", 0))
sketch34.addConstraint(Sketcher.Constraint("Horizontal", 1))
sketch34.addConstraint(Sketcher.Constraint("Vertical", 2))
sketch34.addConstraint(Sketcher.Constraint("Horizontal", 3))
sketch34.addConstraint(Sketcher.Constraint("DistanceX", 1, 1, 1, 2, 78.0))
sketch34.addConstraint(Sketcher.Constraint("DistanceY", 0, 2, 0, 1, 42.0))
sketch34.addConstraint(Sketcher.Constraint("DistanceX", 0, 2, -1, 1, 46.0))
sketch34.addConstraint(Sketcher.Constraint("DistanceY", 0, 2, -1, 1, 21.0))
pocket28 = body.newObject("PartDesign::Pocket", "Pocket027")
pocket28.Profile = sketch34
pocket28.Length = 4
pocket28.Reversed = True

doc.recompute()
